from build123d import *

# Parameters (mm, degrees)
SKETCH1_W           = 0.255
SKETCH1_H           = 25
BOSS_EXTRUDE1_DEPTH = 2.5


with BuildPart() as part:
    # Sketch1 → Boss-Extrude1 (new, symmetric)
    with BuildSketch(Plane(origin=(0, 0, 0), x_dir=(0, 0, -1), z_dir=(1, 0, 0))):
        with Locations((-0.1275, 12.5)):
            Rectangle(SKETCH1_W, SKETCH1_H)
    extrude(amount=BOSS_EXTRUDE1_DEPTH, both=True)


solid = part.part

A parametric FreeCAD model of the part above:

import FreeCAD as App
import Part
import Sketcher
from FreeCAD import Vector

doc = App.newDocument("Part")
params = doc.addObject("Spreadsheet::Sheet", "Params")
for row, (alias, value) in enumerate([
    ("sketch1_width", "25 mm"),
    ("pad1_length", "5 mm"),
], start=1):
    params.set(f"A{row}", alias)
    params.set(f"B{row}", "=" + value)
    params.setAlias(f"B{row}", alias)

body = doc.addObject("PartDesign::Body", "Body")

# Sketch on YZ plane
sketch1 = body.newObject("Sketcher::SketchObject", "Sketch")
sketch1.AttachmentSupport = (doc.getObject("YZ_Plane"), [""])
sketch1.MapMode = "FlatFace"
sketch1.addGeometry([
    Part.LineSegment(Vector(25, 0.26, 0), Vector(0, 0.26, 0)),
    Part.LineSegment(Vector(0, 0.26, 0), Vector(0, 0, 0)),
    Part.LineSegment(Vector(0, 0, 0), Vector(25, 0, 0)),
    Part.LineSegment(Vector(25, 0, 0), Vector(25, 0.26, 0)),
], False)
sketch1.addConstraint([
    Sketcher.Constraint("Coincident", 0, 2, 1, 1),
    Sketcher.Constraint("Coincident", 1, 2, 2, 1),
    Sketcher.Constraint("Coincident", 2, 2, 3, 1),
    Sketcher.Constraint("Coincident", 3, 2, 0, 1),
    Sketcher.Constraint("Horizontal", 0),
    Sketcher.Constraint("Vertical", 1),
    Sketcher.Constraint("Horizontal", 2),
    Sketcher.Constraint("Vertical", 3),
    Sketcher.Constraint("Coincident", 1, 2, -1, 1),
    Sketcher.Constraint("DistanceX", 0, 2, 0, 1, 25.0),
    Sketcher.Constraint("DistanceY", 1, 2, 1, 1, 0.255),
])
sketch1.setExpression("Constraints[9]", "Params.sketch1_width")
pad1 = body.newObject("PartDesign::Pad", "Pad")
pad1.Profile = sketch1
pad1.setExpression("Length", "Params.pad1_length")
pad1.Midplane = True

doc.recompute()
